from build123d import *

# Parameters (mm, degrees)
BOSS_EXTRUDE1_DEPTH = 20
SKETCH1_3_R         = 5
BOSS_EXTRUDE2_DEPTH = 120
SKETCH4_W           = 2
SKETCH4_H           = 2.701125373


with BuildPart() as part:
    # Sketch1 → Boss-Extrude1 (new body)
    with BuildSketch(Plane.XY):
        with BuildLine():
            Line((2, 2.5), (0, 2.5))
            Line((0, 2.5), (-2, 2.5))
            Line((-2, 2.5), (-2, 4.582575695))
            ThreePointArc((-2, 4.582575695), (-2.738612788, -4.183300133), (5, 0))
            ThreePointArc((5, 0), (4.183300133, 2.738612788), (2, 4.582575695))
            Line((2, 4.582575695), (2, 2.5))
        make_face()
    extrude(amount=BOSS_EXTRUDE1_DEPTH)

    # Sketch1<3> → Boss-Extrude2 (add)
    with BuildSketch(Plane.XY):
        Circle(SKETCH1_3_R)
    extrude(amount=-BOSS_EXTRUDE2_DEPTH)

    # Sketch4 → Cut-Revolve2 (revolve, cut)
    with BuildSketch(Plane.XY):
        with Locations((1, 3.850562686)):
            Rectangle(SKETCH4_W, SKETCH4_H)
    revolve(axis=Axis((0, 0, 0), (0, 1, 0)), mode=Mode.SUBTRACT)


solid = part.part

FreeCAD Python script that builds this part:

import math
import FreeCAD as App
import Part
import Sketcher

V = App.Vector
Q = App.Units.Quantity

doc = App.newDocument("Part")
body = doc.addObject("PartDesign::Body", "Body")

sketch1 = doc.addObject("Sketcher::SketchObject", "Sketch")
body.addObject(sketch1)
sketch1.AttachmentSupport = (doc.XY_Plane, [""])
sketch1.MapMode = "FlatFace"
sketch1.addGeometry([
    Part.LineSegment(V(2, 2.5, 0), V(-2, 2.5, 0)),
    Part.LineSegment(V(-2, 2.5, 0), V(-2, 4.582576, 0)),
    Part.ArcOfCircle(Part.Circle(V(0, 0, 0), V(0, 0, 1), 5), math.radians(113.578178), math.radians(360)),
    Part.ArcOfCircle(Part.Circle(V(0, 0, 0), V(0, 0, 1), 5), math.radians(0), math.radians(66.421822)),
    Part.LineSegment(V(2, 4.582576, 0), V(2, 2.5, 0)),
], False)
sketch1.addConstraint([
    Sketcher.Constraint("Coincident", 0, 2, 1, 1),
    Sketcher.Constraint("Coincident", 1, 2, 2, 1),
    Sketcher.Constraint("Tangent", 2, 2, 3, 1),
    Sketcher.Constraint("Coincident", 3, 2, 4, 1),
    Sketcher.Constraint("Coincident", 4, 2, 0, 1),
    Sketcher.Constraint("Horizontal", 0),
    Sketcher.Constraint("Vertical", 1),
    Sketcher.Constraint("Vertical", 4),
    Sketcher.Constraint("Coincident", 2, 3, -1, 1),
    Sketcher.Constraint("Equal", 2, 3),
    Sketcher.Constraint("PointOnObject", 2, 2, -1),
    Sketcher.Constraint("Horizontal", 1, 2, 3, 2),
    Sketcher.Constraint("Radius", 2, Q("5 mm")),
    Sketcher.Constraint("DistanceX", 0, 2, 0, 1, Q("4 mm")),
    Sketcher.Constraint("DistanceY", -1, 1, 0, 2, Q("2.5 mm")),
])
pad1 = doc.addObject("PartDesign::Pad", "Pad")
body.addObject(pad1)
pad1.Profile = sketch1
pad1.Length = 20

sketch2 = doc.addObject("Sketcher::SketchObject", "Sketch001")
body.addObject(sketch2)
sketch2.AttachmentSupport = (doc.XY_Plane, [""])
sketch2.MapMode = "FlatFace"
sketch2.addGeometry(Part.Circle(V(0, 0, 0), V(0, 0, 1), 5), False)
sketch2.addConstraint([
    Sketcher.Constraint("Coincident", 0, 3, -1, 1),
    Sketcher.Constraint("Diameter", 0, Q("10 mm")),
])
pad2 = doc.addObject("PartDesign::Pad", "Pad001")
body.addObject(pad2)
pad2.Profile = sketch2
pad2.Length = 120
pad2.Reversed = True

sketch3 = doc.addObject("Sketcher::SketchObject", "Sketch002")
body.addObject(sketch3)
sketch3.AttachmentSupport = (doc.XY_Plane, [""])
sketch3.MapMode = "FlatFace"
sketch3.addGeometry([
    Part.LineSegment(V(0, 5.201125, 0), V(0, 2.5, 0)),
    Part.LineSegment(V(0, 2.5, 0), V(2, 2.5, 0)),
    Part.LineSegment(V(2, 2.5, 0), V(2, 5.201125, 0)),
    Part.LineSegment(V(2, 5.201125, 0), V(0, 5.201125, 0)),
], False)
sketch3.addConstraint([
    Sketcher.Constraint("Coincident", 0, 2, 1, 1),
    Sketcher.Constraint("Coincident", 1, 2, 2, 1),
    Sketcher.Constraint("Coincident", 2, 2, 3, 1),
    Sketcher.Constraint("Coincident", 3, 2, 0, 1),
    Sketcher.Constraint("Vertical", 0),
    Sketcher.Constraint("Horizontal", 1),
    Sketcher.Constraint("Vertical", 2),
    Sketcher.Constraint("Horizontal", 3),
    Sketcher.Constraint("PointOnObject", 0, 2, -2),
    Sketcher.Constraint("DistanceX", 1, 1, 1, 2, Q("2 mm")),
    Sketcher.Constraint("DistanceY", -1, 1, 0, 2, Q("2.5 mm")),
    Sketcher.Constraint("DistanceY", 0, 2, 0, 1, Q("2.701125 mm")),
])
groove = doc.addObject("PartDesign::Groove", "Groove")
body.addObject(groove)
groove.Profile = sketch3
groove.ReferenceAxis = (sketch3, ["V_Axis"])
groove.Angle = 360

doc.recompute()
